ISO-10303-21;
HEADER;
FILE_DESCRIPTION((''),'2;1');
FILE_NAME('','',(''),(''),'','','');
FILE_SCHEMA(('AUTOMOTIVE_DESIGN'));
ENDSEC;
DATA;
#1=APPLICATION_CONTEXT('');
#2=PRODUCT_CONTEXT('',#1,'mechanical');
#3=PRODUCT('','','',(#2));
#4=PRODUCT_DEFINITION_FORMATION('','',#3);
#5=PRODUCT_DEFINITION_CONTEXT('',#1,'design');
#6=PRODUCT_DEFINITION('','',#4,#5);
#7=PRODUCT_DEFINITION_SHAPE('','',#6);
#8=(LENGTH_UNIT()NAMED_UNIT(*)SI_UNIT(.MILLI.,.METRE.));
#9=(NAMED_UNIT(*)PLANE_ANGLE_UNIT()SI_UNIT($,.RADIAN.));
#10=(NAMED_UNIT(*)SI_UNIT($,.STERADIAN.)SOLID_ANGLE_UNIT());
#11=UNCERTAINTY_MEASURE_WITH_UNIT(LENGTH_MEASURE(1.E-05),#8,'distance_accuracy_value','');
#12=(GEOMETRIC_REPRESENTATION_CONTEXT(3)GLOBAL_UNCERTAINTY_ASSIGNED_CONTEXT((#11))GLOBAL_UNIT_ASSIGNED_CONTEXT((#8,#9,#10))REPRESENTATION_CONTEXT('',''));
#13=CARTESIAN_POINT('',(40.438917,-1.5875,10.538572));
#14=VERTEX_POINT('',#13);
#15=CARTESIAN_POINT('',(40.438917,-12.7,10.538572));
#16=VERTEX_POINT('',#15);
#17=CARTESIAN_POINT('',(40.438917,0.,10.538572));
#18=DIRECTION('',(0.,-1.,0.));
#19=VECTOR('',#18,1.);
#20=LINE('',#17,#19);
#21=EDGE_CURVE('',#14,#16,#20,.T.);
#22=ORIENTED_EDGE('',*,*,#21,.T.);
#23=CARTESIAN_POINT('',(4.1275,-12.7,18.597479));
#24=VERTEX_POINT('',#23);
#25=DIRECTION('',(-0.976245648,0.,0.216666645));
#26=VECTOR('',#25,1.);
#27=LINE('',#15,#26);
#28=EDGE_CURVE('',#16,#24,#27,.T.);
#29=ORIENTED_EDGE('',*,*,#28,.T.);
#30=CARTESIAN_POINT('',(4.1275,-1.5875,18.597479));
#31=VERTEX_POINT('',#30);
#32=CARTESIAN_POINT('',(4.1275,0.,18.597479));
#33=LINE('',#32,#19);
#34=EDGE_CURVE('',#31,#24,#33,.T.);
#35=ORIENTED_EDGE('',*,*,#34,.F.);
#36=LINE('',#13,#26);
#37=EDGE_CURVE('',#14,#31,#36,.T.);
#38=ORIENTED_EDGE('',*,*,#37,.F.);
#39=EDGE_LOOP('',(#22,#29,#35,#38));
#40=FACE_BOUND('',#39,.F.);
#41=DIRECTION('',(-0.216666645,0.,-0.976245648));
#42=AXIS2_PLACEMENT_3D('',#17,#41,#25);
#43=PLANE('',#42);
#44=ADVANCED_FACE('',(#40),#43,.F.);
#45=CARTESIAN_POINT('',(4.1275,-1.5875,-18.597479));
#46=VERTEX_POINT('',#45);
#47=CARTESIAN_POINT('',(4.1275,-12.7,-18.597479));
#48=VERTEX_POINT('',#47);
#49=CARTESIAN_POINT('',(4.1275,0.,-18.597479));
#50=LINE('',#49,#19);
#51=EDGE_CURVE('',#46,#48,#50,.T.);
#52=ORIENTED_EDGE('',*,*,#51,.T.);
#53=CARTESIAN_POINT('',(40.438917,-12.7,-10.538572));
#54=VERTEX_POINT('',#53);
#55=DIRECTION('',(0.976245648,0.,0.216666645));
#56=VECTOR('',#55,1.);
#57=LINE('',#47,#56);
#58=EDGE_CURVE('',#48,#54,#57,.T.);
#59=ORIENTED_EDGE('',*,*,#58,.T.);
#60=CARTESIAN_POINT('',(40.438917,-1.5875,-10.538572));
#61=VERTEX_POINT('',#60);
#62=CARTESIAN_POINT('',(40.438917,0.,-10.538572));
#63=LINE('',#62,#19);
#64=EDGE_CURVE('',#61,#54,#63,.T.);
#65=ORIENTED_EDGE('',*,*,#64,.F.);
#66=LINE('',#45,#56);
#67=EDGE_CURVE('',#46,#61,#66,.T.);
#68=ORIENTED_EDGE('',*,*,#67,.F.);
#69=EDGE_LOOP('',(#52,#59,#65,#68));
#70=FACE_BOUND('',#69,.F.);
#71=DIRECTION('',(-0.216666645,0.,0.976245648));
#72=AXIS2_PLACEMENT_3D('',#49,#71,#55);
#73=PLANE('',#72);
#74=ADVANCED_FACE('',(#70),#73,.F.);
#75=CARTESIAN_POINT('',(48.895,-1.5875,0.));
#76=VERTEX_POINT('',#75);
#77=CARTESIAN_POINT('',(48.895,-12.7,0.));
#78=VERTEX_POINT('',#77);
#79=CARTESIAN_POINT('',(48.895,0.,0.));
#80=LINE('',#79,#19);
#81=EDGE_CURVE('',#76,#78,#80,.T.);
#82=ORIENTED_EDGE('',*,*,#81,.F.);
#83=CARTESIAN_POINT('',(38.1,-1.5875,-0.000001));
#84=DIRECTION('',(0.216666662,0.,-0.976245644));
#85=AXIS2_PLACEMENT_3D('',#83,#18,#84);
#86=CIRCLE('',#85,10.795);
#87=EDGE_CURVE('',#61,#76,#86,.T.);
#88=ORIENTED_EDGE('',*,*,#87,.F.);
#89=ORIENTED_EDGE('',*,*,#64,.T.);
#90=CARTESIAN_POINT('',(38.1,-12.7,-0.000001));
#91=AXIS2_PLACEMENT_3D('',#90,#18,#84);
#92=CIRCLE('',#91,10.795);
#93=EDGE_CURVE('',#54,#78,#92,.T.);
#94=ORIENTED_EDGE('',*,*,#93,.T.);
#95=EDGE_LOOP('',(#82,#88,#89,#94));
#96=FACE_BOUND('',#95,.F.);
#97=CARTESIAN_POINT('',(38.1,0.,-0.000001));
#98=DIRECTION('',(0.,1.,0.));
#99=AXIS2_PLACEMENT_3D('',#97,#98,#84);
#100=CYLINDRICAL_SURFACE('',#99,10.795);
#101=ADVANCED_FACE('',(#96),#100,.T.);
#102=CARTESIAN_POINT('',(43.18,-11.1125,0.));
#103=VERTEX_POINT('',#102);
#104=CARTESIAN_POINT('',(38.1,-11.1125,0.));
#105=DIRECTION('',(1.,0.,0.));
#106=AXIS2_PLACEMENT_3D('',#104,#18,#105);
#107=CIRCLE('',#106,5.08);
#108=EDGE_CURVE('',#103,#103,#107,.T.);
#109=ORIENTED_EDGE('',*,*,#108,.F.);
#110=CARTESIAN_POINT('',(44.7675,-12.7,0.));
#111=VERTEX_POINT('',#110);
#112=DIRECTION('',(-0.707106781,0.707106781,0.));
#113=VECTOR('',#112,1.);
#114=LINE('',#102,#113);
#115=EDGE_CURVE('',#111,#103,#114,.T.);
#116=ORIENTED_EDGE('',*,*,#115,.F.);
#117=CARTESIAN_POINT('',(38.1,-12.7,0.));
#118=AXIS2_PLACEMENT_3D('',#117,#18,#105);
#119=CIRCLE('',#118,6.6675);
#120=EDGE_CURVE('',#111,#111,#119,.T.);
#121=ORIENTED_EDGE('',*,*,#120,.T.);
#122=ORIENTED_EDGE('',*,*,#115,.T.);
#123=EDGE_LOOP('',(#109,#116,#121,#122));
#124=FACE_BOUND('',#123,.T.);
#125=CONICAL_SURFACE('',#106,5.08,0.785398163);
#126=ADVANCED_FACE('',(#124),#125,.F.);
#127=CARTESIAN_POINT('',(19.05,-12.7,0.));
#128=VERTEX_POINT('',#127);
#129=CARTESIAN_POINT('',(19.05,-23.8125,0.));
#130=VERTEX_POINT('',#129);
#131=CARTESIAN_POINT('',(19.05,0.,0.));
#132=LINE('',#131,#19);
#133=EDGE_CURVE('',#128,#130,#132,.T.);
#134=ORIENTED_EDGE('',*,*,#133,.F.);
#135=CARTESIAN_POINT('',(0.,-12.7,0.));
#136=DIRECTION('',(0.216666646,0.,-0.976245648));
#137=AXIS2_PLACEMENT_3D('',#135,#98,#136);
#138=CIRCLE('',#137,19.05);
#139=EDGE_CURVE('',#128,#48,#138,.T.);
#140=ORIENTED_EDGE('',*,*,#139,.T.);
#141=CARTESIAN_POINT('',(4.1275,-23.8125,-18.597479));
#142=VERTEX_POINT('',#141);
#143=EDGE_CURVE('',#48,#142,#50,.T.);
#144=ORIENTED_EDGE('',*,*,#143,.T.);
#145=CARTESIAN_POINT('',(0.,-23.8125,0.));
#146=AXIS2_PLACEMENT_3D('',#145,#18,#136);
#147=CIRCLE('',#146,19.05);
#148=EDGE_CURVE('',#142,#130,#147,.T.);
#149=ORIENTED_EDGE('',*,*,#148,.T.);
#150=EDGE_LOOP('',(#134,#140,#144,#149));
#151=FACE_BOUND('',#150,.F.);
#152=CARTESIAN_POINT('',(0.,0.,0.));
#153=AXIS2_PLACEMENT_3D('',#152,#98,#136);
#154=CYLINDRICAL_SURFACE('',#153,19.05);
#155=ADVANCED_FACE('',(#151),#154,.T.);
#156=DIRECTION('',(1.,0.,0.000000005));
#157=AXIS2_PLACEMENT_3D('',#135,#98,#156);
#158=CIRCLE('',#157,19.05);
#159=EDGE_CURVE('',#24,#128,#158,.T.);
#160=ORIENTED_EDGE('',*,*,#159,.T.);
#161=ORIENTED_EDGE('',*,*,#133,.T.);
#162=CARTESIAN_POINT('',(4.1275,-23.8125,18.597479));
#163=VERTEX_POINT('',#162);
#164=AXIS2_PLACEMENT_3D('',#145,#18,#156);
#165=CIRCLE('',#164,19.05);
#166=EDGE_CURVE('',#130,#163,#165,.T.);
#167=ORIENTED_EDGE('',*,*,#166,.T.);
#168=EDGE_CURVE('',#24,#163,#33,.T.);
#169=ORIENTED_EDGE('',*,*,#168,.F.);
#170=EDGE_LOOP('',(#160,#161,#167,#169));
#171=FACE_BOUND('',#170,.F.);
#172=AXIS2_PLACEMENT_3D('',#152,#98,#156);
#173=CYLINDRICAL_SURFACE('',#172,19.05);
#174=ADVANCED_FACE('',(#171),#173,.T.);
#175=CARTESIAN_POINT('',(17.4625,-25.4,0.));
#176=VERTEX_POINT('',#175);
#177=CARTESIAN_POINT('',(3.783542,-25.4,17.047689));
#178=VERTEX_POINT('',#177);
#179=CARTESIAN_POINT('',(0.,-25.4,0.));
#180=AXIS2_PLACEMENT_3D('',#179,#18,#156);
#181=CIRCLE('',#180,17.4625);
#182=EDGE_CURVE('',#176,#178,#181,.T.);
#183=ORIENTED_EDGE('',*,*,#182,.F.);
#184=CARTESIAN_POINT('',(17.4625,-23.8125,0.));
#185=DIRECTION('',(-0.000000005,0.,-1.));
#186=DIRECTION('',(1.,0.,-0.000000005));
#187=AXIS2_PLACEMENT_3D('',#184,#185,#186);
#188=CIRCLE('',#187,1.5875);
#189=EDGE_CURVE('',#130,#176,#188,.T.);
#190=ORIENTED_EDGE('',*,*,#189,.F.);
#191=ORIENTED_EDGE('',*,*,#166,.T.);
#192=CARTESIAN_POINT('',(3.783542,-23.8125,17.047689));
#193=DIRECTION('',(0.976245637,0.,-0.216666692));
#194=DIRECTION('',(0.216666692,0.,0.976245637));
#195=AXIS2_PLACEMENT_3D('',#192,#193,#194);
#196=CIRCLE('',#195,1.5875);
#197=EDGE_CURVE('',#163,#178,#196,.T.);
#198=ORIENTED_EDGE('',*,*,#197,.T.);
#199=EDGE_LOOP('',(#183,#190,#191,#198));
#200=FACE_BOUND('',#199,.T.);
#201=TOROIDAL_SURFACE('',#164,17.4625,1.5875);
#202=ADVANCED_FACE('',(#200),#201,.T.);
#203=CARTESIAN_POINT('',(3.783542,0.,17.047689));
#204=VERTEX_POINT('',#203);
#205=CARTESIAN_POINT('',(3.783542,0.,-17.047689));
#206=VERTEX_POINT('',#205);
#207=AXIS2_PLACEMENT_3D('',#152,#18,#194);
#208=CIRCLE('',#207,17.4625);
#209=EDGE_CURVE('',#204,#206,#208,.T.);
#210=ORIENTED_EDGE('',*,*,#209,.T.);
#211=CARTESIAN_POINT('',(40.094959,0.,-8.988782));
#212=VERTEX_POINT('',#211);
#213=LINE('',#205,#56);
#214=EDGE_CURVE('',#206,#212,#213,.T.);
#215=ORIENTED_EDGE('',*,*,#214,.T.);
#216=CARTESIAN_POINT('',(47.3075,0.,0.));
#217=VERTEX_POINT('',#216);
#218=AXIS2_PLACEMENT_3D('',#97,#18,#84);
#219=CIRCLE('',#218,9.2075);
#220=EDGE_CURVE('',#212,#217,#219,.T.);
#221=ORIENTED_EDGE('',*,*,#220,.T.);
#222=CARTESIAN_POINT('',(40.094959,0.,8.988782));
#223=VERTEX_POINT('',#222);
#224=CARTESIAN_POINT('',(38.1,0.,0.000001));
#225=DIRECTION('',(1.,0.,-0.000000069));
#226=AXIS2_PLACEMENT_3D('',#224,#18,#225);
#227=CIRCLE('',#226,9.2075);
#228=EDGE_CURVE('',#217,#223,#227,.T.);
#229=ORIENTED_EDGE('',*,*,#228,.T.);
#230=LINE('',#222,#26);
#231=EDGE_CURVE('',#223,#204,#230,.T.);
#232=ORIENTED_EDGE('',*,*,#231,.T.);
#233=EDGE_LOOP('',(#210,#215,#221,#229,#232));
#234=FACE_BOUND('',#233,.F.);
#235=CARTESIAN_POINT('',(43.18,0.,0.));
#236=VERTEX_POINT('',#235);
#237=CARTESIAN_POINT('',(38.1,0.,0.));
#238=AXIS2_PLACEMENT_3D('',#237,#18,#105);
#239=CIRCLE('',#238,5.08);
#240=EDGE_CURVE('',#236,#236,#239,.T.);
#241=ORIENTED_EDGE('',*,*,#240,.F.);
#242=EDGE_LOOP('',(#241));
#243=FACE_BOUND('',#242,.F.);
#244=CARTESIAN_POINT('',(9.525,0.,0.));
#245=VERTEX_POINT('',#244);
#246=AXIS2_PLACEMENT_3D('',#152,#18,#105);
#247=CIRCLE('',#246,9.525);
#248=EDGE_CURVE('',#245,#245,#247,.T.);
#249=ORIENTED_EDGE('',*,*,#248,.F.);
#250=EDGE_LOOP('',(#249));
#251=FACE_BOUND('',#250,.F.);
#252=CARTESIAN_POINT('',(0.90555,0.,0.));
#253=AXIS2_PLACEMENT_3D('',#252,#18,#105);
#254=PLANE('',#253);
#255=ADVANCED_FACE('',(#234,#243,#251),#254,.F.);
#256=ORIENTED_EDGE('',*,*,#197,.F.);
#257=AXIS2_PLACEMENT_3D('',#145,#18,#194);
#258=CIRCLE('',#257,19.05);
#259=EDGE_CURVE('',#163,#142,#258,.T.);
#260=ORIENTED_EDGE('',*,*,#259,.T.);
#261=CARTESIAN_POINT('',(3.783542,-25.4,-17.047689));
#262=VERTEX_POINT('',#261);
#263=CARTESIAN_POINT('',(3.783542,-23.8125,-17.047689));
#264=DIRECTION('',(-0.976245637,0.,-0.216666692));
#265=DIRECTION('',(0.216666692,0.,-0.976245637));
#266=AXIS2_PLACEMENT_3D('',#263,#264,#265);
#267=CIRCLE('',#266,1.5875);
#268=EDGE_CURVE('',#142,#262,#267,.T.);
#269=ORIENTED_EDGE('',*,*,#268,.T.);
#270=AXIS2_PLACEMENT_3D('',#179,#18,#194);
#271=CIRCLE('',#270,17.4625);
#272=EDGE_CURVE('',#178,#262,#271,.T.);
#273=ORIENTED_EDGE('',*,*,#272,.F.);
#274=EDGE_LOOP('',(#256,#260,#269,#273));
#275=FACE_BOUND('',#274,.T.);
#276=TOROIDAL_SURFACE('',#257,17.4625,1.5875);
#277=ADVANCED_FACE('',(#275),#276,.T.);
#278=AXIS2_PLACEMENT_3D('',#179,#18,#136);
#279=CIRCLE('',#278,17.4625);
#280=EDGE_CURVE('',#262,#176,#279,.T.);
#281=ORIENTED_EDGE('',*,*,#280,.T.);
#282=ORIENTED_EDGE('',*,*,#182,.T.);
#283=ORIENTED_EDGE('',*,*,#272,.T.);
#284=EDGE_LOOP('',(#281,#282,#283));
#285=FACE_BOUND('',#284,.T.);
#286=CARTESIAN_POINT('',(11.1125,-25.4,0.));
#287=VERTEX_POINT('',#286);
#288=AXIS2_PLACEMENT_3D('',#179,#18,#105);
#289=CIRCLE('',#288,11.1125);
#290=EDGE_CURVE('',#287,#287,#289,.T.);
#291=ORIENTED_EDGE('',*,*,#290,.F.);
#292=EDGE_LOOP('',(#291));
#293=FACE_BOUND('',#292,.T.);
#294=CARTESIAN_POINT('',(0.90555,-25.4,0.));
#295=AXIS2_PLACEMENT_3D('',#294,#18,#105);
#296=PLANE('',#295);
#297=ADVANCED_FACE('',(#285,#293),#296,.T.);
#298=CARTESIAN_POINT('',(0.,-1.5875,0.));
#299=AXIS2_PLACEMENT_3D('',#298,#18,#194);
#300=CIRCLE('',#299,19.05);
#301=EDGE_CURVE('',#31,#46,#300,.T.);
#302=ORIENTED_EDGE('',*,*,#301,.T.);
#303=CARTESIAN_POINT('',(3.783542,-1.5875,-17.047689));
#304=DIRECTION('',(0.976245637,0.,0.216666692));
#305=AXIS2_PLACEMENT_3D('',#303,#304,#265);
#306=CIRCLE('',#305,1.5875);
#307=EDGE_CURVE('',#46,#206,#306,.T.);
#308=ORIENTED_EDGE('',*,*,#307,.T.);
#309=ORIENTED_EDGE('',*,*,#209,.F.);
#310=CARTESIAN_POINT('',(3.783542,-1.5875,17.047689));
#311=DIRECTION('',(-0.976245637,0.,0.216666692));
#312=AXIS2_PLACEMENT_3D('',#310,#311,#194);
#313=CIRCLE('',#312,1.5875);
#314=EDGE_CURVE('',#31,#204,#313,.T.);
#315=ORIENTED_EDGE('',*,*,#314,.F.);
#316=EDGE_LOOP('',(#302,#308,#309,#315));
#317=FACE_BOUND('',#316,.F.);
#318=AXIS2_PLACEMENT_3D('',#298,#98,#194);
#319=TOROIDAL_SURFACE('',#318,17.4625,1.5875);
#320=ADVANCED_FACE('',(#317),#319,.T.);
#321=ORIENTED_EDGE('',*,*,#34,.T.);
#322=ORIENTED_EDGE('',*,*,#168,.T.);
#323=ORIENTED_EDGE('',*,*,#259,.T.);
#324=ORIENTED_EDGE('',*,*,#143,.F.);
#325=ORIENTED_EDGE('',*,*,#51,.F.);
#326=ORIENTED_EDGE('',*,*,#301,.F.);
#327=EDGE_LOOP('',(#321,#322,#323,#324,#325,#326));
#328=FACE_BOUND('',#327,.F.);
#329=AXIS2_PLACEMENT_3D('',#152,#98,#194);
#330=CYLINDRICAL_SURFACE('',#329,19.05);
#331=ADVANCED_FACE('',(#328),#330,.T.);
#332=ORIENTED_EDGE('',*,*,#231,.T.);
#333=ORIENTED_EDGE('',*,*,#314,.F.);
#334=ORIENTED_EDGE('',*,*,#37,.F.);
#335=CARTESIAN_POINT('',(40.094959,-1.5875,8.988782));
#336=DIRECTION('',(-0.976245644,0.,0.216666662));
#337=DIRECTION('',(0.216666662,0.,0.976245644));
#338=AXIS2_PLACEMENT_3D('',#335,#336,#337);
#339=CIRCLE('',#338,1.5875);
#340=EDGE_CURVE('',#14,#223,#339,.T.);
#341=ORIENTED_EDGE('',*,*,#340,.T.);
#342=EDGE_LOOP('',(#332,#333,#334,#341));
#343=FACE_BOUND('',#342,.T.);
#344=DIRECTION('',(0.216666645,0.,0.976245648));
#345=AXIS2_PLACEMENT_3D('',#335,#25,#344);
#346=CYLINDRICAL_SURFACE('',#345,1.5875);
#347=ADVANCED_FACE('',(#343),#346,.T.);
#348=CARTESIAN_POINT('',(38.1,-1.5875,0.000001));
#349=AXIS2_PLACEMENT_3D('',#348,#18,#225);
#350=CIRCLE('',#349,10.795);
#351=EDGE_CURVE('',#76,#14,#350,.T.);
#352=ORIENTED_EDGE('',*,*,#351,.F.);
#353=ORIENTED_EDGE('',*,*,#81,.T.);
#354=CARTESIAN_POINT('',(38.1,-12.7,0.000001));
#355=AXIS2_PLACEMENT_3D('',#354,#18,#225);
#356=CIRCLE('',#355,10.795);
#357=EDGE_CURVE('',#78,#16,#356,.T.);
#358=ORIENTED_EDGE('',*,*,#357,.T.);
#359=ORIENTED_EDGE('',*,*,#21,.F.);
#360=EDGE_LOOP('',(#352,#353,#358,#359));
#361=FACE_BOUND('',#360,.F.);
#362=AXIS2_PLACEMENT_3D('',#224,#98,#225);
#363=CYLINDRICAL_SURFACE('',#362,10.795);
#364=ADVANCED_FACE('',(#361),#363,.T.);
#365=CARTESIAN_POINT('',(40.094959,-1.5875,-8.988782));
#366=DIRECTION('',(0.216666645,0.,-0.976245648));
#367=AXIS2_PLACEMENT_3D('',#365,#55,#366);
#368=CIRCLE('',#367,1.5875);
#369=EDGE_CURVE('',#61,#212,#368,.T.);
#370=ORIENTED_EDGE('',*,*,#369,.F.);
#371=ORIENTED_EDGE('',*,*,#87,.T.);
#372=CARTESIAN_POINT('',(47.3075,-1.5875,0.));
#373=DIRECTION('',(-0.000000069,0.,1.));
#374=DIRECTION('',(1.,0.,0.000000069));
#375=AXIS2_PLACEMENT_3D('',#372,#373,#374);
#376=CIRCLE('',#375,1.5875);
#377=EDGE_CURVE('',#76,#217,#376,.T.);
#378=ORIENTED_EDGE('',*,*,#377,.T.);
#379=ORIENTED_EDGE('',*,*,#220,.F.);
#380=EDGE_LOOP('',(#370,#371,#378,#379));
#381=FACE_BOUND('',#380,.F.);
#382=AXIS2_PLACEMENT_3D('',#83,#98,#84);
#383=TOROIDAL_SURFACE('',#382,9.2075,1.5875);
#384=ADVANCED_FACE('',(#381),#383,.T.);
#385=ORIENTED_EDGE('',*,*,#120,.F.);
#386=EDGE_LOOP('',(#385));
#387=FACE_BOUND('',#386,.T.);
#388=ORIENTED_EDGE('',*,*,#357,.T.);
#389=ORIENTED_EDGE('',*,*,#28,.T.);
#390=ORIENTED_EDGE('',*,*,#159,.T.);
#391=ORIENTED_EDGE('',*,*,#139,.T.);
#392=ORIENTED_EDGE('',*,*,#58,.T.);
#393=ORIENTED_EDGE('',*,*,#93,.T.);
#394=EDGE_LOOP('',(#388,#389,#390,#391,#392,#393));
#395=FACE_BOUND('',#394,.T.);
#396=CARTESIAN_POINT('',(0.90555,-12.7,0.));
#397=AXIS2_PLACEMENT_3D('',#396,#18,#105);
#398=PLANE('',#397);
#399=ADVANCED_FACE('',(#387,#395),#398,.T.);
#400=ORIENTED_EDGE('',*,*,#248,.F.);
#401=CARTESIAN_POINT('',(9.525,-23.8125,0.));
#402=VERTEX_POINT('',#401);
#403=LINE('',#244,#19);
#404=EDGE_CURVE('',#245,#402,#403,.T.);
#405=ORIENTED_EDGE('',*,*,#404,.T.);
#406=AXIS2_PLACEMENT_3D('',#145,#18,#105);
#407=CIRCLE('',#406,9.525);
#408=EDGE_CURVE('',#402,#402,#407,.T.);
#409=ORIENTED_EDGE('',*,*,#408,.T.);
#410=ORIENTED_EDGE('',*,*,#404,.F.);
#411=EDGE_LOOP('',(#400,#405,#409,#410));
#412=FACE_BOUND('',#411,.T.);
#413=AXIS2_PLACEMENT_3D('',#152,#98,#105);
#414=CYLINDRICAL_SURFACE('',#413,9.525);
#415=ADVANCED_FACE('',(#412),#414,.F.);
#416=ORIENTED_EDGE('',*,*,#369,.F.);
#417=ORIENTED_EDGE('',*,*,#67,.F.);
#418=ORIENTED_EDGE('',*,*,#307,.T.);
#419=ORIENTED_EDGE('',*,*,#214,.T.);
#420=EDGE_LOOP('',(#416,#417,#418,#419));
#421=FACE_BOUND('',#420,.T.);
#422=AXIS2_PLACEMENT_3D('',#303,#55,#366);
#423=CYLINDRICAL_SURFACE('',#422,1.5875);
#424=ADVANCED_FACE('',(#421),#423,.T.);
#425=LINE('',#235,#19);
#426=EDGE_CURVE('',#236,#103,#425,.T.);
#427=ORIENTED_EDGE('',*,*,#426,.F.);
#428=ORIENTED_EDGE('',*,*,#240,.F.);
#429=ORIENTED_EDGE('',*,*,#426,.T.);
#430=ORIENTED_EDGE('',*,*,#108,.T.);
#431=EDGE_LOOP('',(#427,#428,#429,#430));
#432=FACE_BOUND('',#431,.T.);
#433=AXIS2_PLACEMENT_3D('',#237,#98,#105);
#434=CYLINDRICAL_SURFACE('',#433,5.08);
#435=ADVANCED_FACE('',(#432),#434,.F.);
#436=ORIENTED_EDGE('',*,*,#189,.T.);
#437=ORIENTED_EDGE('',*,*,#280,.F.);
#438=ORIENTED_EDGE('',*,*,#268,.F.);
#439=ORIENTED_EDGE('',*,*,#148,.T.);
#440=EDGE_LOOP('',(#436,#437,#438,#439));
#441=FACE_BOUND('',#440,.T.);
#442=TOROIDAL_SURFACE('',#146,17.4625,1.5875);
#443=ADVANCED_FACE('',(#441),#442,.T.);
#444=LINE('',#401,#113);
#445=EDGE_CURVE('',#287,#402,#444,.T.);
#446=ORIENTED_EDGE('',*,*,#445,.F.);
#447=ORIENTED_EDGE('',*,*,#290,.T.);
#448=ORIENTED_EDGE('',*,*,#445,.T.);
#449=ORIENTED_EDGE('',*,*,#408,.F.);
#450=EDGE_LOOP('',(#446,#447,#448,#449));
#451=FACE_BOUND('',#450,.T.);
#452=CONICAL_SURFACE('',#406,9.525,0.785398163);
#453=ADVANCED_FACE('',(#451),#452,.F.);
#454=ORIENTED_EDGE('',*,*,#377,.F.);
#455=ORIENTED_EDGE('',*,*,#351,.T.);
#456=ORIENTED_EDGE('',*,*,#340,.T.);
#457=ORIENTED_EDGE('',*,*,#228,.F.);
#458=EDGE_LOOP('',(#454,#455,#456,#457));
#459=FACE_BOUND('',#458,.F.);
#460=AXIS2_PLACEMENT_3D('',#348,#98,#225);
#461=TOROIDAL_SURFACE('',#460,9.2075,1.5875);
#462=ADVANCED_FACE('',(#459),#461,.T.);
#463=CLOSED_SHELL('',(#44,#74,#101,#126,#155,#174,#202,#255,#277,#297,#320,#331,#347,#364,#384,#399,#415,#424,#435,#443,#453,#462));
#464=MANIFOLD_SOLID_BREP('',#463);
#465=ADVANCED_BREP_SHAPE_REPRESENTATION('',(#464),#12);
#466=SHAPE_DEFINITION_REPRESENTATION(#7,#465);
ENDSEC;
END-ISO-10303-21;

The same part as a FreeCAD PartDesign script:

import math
import FreeCAD as App
import Part
import Sketcher
Q = App.Units.Quantity


def edges_at(feature, points):
    """Names of the edges that pass closest to the given points."""
    edges = feature.Shape.Edges
    near = lambda p: min(range(len(edges)), key=lambda i: edges[i].distToShape(Part.Vertex(*p))[0])
    return sorted({f"Edge{near(p) + 1}" for p in points})

doc = App.newDocument("Part")
body = doc.addObject("PartDesign::Body", "Body")

sketch1 = body.newObject("Sketcher::SketchObject", "Sketch")
sketch1.AttachmentSupport = (doc.getObject("XZ_Plane"), [""])
sketch1.MapMode = "FlatFace"
sketch1.addGeometry([
    Part.ArcOfCircle(Part.Circle(App.Vector(0, 0, 0), App.Vector(0, 0, 1), 19.05), math.radians(77.486673), math.radians(282.513327)),
    Part.LineSegment(App.Vector(4.1275, -18.597479, 0), App.Vector(40.438917, -10.538572, 0)),
    Part.ArcOfCircle(Part.Circle(App.Vector(38.1, -0.000001, 0), App.Vector(0, 0, 1), 10.795), math.radians(-77.486675), math.radians(0.000004)),
    Part.ArcOfCircle(Part.Circle(App.Vector(38.1, 0.000001, 0), App.Vector(0, 0, 1), 10.795), math.radians(-0.000004), math.radians(77.486675)),
    Part.LineSegment(App.Vector(40.438917, 10.538572, 0), App.Vector(4.1275, 18.597479, 0)),
    Part.Circle(App.Vector(38.1, 0, 0), App.Vector(0, 0, 1), 5.08),
    Part.Circle(App.Vector(0, 0, 0), App.Vector(0, 0, 1), 9.525),
], False)
sketch1.addConstraint([
    Sketcher.Constraint("Tangent", 0, 2, 1, 1),
    Sketcher.Constraint("Tangent", 1, 2, 2, 1),
    Sketcher.Constraint("Tangent", 2, 2, 3, 1),
    Sketcher.Constraint("Tangent", 3, 2, 4, 1),
    Sketcher.Constraint("Tangent", 4, 2, 0, 1),
    Sketcher.Constraint("Coincident", 0, 3, -1, 1),
    Sketcher.Constraint("Coincident", 6, 3, -1, 1),
    Sketcher.Constraint("Coincident", 5, 3, 2, 3),
    Sketcher.Constraint("Equal", 2, 3),
    Sketcher.Constraint("PointOnObject", 2, 3, -1),
    Sketcher.Constraint("PointOnObject", 2, 2, -1),
    Sketcher.Constraint("Diameter", 5, Q("0.4 in")),
    Sketcher.Constraint("Diameter", 6, Q("0.75 in")),
    Sketcher.Constraint("Radius", 0, Q("0.75 in")),
    Sketcher.Constraint("Radius", 2, Q("0.425 in")),
    Sketcher.Constraint("DistanceX", -1, 1, 2, 3, Q("1.5 in")),
])
pad1 = body.newObject("PartDesign::Pad", "Pad")
pad1.Profile = sketch1
pad1.Length = Q("0.5 in")

sketch2 = body.newObject("Sketcher::SketchObject", "Sketch001")
sketch2.AttachmentSupport = (doc.getObject("XZ_Plane"), [""])
sketch2.MapMode = "FlatFace"
sketch2.addGeometry([
    Part.ArcOfCircle(Part.Circle(App.Vector(0, 0, 0), App.Vector(0, 0, 1), 19.05), math.radians(-77.486676), math.radians(0)),
    Part.ArcOfCircle(Part.Circle(App.Vector(0, 0, 0), App.Vector(0, 0, 1), 19.05), math.radians(0), math.radians(77.486676)),
    Part.ArcOfCircle(Part.Circle(App.Vector(0, 0, 0), App.Vector(0, 0, 1), 19.05), math.radians(77.486673), math.radians(282.513327)),
    Part.Circle(App.Vector(0, 0, 0), App.Vector(0, 0, 1), 9.525),
], False)
sketch2.addConstraint([
    Sketcher.Constraint("Tangent", 0, 2, 1, 1),
    Sketcher.Constraint("Tangent", 1, 2, 2, 1),
    Sketcher.Constraint("Tangent", 2, 2, 0, 1),
    Sketcher.Constraint("Coincident", 0, 3, -1, 1),
    Sketcher.Constraint("Coincident", 3, 3, -1, 1),
    Sketcher.Constraint("PointOnObject", 0, 2, -1),
    Sketcher.Constraint("Vertical", 1, 2, 2, 2),
    Sketcher.Constraint("Diameter", 3, Q("0.75 in")),
    Sketcher.Constraint("Radius", 0, Q("0.75 in")),
    Sketcher.Constraint("DistanceX", -1, 1, 1, 2, Q("0.1625 in")),
])
pad2 = body.newObject("PartDesign::Pad", "Pad001")
pad2.Profile = sketch2
pad2.Length = Q("1 in")
doc.recompute()

fillet = body.newObject("PartDesign::Fillet", "Fillet")
fillet.Base = (pad2, edges_at(pad2, [
    (-19.05, -25.4, 0),
    (-19.05, 0, 0),
    (22.283, 0, 14.568),
    (46.52, 0, -6.756),
    (22.283, 0, -14.568),
]))
fillet.Radius = Q("0.0625 in")
doc.recompute()

chamfer = body.newObject("PartDesign::Chamfer", "Chamfer")
chamfer.Base = (fillet, edges_at(fillet, [(-9.525, -25.4, 0), (33.02, -12.7, 0)]))
chamfer.Size = Q("0.0625 in")

doc.recompute()
